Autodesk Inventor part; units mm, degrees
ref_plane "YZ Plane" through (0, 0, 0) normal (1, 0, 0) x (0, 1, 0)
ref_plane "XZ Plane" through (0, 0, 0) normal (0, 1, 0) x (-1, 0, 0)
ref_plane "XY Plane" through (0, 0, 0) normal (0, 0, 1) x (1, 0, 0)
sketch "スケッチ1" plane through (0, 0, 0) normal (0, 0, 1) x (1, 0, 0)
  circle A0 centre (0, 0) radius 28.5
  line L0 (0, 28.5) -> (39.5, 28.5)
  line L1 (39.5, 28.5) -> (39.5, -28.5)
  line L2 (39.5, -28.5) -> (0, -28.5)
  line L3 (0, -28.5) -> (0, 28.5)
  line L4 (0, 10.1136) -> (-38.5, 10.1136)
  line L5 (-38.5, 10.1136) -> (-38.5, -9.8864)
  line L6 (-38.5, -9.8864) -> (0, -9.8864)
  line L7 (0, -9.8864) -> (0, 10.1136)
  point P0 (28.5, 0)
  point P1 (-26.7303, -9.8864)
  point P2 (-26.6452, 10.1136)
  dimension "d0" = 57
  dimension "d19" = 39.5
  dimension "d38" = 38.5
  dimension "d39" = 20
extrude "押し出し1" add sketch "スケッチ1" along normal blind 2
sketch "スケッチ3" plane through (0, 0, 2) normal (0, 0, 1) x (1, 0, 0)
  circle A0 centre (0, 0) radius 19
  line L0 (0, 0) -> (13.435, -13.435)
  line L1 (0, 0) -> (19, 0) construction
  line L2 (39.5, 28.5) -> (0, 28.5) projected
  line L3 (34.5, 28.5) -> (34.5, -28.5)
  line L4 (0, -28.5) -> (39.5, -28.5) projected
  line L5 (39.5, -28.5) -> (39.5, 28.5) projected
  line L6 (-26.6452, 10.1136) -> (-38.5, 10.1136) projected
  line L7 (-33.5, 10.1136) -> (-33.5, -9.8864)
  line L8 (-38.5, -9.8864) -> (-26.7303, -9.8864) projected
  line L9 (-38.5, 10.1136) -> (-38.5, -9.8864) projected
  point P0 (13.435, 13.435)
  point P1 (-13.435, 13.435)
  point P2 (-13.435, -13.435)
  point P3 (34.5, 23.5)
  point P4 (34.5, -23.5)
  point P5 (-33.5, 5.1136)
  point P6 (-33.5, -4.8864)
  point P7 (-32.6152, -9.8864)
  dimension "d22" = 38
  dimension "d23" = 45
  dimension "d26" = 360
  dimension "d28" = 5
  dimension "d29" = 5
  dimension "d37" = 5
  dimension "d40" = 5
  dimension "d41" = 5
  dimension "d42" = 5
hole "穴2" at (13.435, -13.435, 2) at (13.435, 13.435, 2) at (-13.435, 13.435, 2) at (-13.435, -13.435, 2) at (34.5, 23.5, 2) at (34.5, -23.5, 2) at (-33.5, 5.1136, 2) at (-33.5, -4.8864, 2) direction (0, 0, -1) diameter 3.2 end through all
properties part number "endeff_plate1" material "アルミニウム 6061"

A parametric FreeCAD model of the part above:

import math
import FreeCAD as App
import Part
import Sketcher
from FreeCAD import Vector
Q = App.Units.Quantity

doc = App.newDocument("Part")
body = doc.addObject("PartDesign::Body", "Body")

# Sketch on XY plane
sketch1 = doc.addObject("Sketcher::SketchObject", "Sketch")
body.addObject(sketch1)
sketch1.AttachmentSupport = (doc.XY_Plane, [""])
sketch1.MapMode = "FlatFace"
sketch1.addGeometry([
    Part.LineSegment(Vector(0, -28, 0), Vector(40, -28, 0)),  # 0
    Part.LineSegment(Vector(40, -28, 0), Vector(40, 28, 0)),  # 1
    Part.LineSegment(Vector(40, 28, 0), Vector(0, 28, 0)),  # 2
    Part.ArcOfCircle(Part.Circle(Vector(0, 0, 0), Vector(0, 0, 1), 28), math.radians(90), math.radians(159)),  # 3
    Part.LineSegment(Vector(-27, 10, 0), Vector(-38, 10, 0)),  # 4
    Part.LineSegment(Vector(-38, 10, 0), Vector(-38, -10, 0)),  # 5
    Part.LineSegment(Vector(-38, -10, 0), Vector(-27, -10, 0)),  # 6
    Part.ArcOfCircle(Part.Circle(Vector(0, 0, 0), Vector(0, 0, 1), 28), math.radians(-160), math.radians(-90)),  # 7
], False)
sketch1.addConstraint([
    Sketcher.Constraint("Coincident", 0, 2, 1, 1),
    Sketcher.Constraint("Coincident", 1, 2, 2, 1),
    Sketcher.Constraint("Tangent", 2, 2, 3, 1),
    Sketcher.Constraint("Coincident", 3, 2, 4, 1),
    Sketcher.Constraint("Coincident", 4, 2, 5, 1),
    Sketcher.Constraint("Coincident", 5, 2, 6, 1),
    Sketcher.Constraint("Coincident", 6, 2, 7, 1),
    Sketcher.Constraint("Tangent", 7, 2, 0, 1),
    Sketcher.Constraint("Horizontal", 0),
    Sketcher.Constraint("Vertical", 1),
    Sketcher.Constraint("Horizontal", 2),
    Sketcher.Constraint("Horizontal", 4),
    Sketcher.Constraint("Vertical", 5),
    Sketcher.Constraint("Horizontal", 6),
    Sketcher.Constraint("Coincident", 3, 3, -1, 1),
    Sketcher.Constraint("Coincident", 7, 3, -1, 1),
    Sketcher.Constraint("Equal", 3, 7),
    Sketcher.Constraint("Radius", 3, Q("28.5 mm")),
    Sketcher.Constraint("DistanceY", 5, 2, 5, 1, Q("20 mm")),
    Sketcher.Constraint("DistanceX", 0, 1, 0, 2, Q("39.5 mm")),
    Sketcher.Constraint("DistanceX", 4, 2, -1, 1, Q("38.5 mm")),
    Sketcher.Constraint("DistanceX", 4, 2, 4, 1, Q("11.8548 mm")),
])
pad1 = doc.addObject("PartDesign::Pad", "Pad")
body.addObject(pad1)
pad1.Profile = sketch1
pad1.Length = 2

# Sketch on XY plane
sketch2 = doc.addObject("Sketcher::SketchObject", "Sketch001")
body.addObject(sketch2)
sketch2.AttachmentSupport = (doc.XY_Plane, [""])
sketch2.MapMode = "FlatFace"
sketch2.AttachmentOffset = App.Placement(Vector(0, 0, 2), App.Rotation())
sketch2.addGeometry([
    Part.Circle(Vector(13.4, -13.4, 0), Vector(0, 0, 1), 1.6),  # 0
    Part.Circle(Vector(13.4, 13.4, 0), Vector(0, 0, 1), 1.6),  # 1
    Part.Circle(Vector(-13.4, 13.4, 0), Vector(0, 0, 1), 1.6),  # 2
    Part.Circle(Vector(-13.4, -13.4, 0), Vector(0, 0, 1), 1.6),  # 3
    Part.Circle(Vector(34.5, 23.5, 0), Vector(0, 0, 1), 1.6),  # 4
    Part.Circle(Vector(34.5, -23.5, 0), Vector(0, 0, 1), 1.6),  # 5
    Part.Circle(Vector(-33.5, 5.1, 0), Vector(0, 0, 1), 1.6),  # 6
    Part.Circle(Vector(-33.5, -4.9, 0), Vector(0, 0, 1), 1.6),  # 7
], False)
sketch2.addConstraint([
    Sketcher.Constraint("Equal", 0, 1),
    Sketcher.Constraint("Equal", 1, 2),
    Sketcher.Constraint("Equal", 2, 3),
    Sketcher.Constraint("Equal", 3, 4),
    Sketcher.Constraint("Equal", 4, 5),
    Sketcher.Constraint("Equal", 5, 6),
    Sketcher.Constraint("Equal", 6, 7),
    Sketcher.Constraint("Symmetric", 0, 3, 2, 3, -1, 1),
    Sketcher.Constraint("Symmetric", 1, 3, 3, 3, -1, 1),
    Sketcher.Constraint("Symmetric", 1, 3, 2, 3, -2),
    Sketcher.Constraint("Symmetric", 4, 3, 5, 3, -1),
    Sketcher.Constraint("Vertical", 6, 3, 7, 3),
    Sketcher.Constraint("Diameter", 0, Q("3.2 mm")),
    Sketcher.Constraint("DistanceY", 5, 3, 4, 3, Q("47 mm")),
    Sketcher.Constraint("DistanceX", 6, 3, 4, 3, Q("68 mm")),
    Sketcher.Constraint("DistanceY", 7, 3, 6, 3, Q("10 mm")),
    Sketcher.Constraint("DistanceX", -1, 1, 4, 3, Q("34.5 mm")),
    Sketcher.Constraint("DistanceY", 0, 3, 1, 3, Q("26.87 mm")),
    Sketcher.Constraint("DistanceX", 2, 3, 1, 3, Q("26.87 mm")),
    Sketcher.Constraint("DistanceY", -1, 1, 6, 3, Q("5.1136 mm")),
])
doc.recompute()
hole = doc.addObject("PartDesign::Hole", "Hole")
body.addObject(hole)
hole.Profile = sketch2
hole.ThreadType = "None"
hole.Diameter = 3.2
hole.DepthType = "ThroughAll"

doc.recompute()
